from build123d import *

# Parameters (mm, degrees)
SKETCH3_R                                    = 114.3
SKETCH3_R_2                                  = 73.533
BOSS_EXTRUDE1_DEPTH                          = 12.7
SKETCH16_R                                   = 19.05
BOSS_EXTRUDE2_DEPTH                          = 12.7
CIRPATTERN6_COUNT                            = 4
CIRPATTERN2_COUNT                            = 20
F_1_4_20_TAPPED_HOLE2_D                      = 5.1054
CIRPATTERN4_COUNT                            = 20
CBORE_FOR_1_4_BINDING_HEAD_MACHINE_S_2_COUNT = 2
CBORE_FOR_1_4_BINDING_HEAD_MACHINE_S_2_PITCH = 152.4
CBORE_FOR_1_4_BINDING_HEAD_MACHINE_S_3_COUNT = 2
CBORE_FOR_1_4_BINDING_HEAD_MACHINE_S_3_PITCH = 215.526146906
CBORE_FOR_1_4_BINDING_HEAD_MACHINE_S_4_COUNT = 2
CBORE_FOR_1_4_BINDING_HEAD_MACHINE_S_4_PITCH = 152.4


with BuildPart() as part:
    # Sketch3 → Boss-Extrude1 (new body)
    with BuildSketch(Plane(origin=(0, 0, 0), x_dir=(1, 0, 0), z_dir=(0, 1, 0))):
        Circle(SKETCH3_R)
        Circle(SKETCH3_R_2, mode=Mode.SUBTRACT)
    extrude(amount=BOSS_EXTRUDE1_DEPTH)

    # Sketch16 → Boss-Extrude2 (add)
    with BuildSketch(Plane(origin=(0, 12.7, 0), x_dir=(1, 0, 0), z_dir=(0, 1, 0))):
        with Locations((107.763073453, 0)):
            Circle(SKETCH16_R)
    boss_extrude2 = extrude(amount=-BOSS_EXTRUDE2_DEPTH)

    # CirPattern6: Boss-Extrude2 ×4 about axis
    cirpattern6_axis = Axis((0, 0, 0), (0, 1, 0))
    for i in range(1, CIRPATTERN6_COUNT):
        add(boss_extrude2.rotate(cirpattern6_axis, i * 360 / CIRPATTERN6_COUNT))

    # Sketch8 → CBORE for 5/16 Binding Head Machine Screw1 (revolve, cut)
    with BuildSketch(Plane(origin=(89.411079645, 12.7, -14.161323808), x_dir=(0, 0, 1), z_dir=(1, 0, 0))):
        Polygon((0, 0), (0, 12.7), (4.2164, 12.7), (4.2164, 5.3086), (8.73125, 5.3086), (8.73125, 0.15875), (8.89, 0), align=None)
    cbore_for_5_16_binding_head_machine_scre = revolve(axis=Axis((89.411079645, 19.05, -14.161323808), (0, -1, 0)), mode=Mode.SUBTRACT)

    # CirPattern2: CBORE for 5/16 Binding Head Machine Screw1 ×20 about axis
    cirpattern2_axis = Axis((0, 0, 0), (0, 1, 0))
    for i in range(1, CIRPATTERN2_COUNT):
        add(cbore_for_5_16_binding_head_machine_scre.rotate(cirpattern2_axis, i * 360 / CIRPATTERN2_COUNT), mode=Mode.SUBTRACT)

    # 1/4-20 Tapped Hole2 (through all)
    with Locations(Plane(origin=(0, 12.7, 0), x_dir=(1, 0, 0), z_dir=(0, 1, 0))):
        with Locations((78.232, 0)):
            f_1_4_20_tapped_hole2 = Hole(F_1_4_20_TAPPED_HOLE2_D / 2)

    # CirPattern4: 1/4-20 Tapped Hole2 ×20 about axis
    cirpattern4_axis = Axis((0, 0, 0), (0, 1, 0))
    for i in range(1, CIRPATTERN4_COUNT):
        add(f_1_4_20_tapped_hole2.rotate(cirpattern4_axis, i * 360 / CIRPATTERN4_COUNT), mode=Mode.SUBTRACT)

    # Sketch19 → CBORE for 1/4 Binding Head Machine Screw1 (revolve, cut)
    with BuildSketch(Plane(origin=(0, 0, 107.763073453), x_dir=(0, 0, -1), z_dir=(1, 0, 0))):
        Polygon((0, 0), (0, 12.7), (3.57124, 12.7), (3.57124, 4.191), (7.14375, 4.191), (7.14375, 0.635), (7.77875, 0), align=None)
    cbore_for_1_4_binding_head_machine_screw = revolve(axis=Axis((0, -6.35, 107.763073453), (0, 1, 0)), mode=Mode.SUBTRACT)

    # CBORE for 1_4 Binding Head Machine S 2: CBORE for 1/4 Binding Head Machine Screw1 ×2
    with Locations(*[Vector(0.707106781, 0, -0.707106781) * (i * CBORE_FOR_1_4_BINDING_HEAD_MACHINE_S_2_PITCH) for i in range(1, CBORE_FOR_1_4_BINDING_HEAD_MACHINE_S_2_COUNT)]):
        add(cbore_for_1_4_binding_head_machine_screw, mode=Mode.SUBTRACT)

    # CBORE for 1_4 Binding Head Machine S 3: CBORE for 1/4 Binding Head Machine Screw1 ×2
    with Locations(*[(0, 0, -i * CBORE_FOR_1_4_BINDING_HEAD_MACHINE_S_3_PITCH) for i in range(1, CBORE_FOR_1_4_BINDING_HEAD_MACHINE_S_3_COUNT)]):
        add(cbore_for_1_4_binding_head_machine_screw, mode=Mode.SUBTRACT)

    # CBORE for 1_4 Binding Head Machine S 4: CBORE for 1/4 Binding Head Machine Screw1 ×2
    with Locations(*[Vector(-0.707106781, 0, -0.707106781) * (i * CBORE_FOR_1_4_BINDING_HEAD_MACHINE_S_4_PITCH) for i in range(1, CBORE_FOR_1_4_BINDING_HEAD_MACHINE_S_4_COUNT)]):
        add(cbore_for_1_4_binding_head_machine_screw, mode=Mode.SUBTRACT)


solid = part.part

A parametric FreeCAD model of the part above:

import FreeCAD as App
import Part
import Sketcher

V = App.Vector
Q = App.Units.Quantity

doc = App.newDocument("Part")
params = doc.addObject("Spreadsheet::Sheet", "Params")
for row, (alias, value) in enumerate([
    ("sketch1_diameter", "9 in"),
    ("sketch1_diameter2", "5.79 in"),
    ("pad1_length", "0.5 in"),
    ("sketch2_diameter", "1.5 in"),
    ("pad2_length", "0.5 in"),
    ("sketch3_width", "0.5 in"),
    ("sketch3_height", "0.35 in"),
    ("sketch3_width2", "0.291 in"),
    ("sketch3_height2", "0.166 in"),
    ("groove_angle", "360 deg"),
    ("sketch4_diameter", "0.201 in"),
    ("hole_diameter", "0.201 in"),
    ("sketch5_width", "0.5 in"),
    ("sketch5_width2", "0.14 in"),
    ("sketch5_width3", "0.335 in"),
    ("groove2_angle", "360 deg"),
    ("linearpattern_pitch", "6 in"),
    ("linearpattern2_pitch", "215.526147 mm"),
    ("linearpattern3_pitch", "6 in"),
], start=1):
    params.set(f"A{row}", alias)
    params.set(f"B{row}", "=" + value)
    params.setAlias(f"B{row}", alias)

body = doc.addObject("PartDesign::Body", "Body")

# Sketch on XZ plane
sketch1 = body.newObject("Sketcher::SketchObject", "Sketch")
sketch1.AttachmentSupport = (doc.getObject("XZ_Plane"), [""])
sketch1.MapMode = "FlatFace"
sketch1.addGeometry(Part.Circle(V(0, 0, 0), V(0, 0, 1), 114), False)
sketch1.addGeometry(Part.Circle(V(0, 0, 0), V(0, 0, 1), 74), False)
sketch1.addConstraint(Sketcher.Constraint("Coincident", 0, 3, -1, 1))
sketch1.addConstraint(Sketcher.Constraint("Coincident", 1, 3, -1, 1))
sketch1.addConstraint(Sketcher.Constraint("Diameter", 0, Q("9 in")))
sketch1.addConstraint(Sketcher.Constraint("Diameter", 1, Q("5.79 in")))
sketch1.setExpression("Constraints[2]", "Params.sketch1_diameter")
sketch1.setExpression("Constraints[3]", "Params.sketch1_diameter2")
pad1 = body.newObject("PartDesign::Pad", "Pad")
pad1.Profile = sketch1
pad1.setExpression("Length", "Params.pad1_length")
pad1.Reversed = True

# Sketch on XZ plane
sketch2 = body.newObject("Sketcher::SketchObject", "Sketch001")
sketch2.AttachmentSupport = (doc.getObject("XZ_Plane"), [""])
sketch2.MapMode = "FlatFace"
sketch2.AttachmentOffset = App.Placement(V(0, 0, -0.5 * 25.4), App.Rotation())
sketch2.addGeometry(Part.Circle(V(108, 0, 0), V(0, 0, 1), 19), False)
sketch2.addConstraint(Sketcher.Constraint("PointOnObject", 0, 3, -1))
sketch2.addConstraint(Sketcher.Constraint("Diameter", 0, Q("1.5 in")))
sketch2.addConstraint(Sketcher.Constraint("DistanceX", -1, 1, 0, 3, 107.763073))
sketch2.setExpression("Constraints[1]", "Params.sketch2_diameter")
pad2 = body.newObject("PartDesign::Pad", "Pad001")
pad2.Profile = sketch2
pad2.setExpression("Length", "Params.pad2_length")
doc.recompute()

polarpattern = body.newObject("PartDesign::PolarPattern", "PolarPattern")
polarpattern.Originals = [pad2]
polarpattern.Axis = (doc.getObject("Y_Axis"), [""])
polarpattern.Angle = 360
polarpattern.Occurrences = 4
body.Tip = polarpattern

# Sketch on YZ plane
sketch3 = body.newObject("Sketcher::SketchObject", "Sketch002")
sketch3.AttachmentSupport = (doc.getObject("YZ_Plane"), [""])
sketch3.MapMode = "FlatFace"
sketch3.AttachmentOffset = App.Placement(V(0, 0, 89.41108), App.Rotation())
sketch3.addGeometry(Part.LineSegment(V(0, -14.16, 0), V(12.7, -14.16, 0)), False)
sketch3.addGeometry(Part.LineSegment(V(12.7, -14.16, 0), V(12.7, -5.27, 0)), False)
sketch3.addGeometry(Part.LineSegment(V(12.7, -5.27, 0), V(12.54, -5.43, 0)), False)
sketch3.addGeometry(Part.LineSegment(V(12.54, -5.43, 0), V(7.39, -5.43, 0)), False)
sketch3.addGeometry(Part.LineSegment(V(7.39, -5.43, 0), V(7.39, -9.94, 0)), False)
sketch3.addGeometry(Part.LineSegment(V(7.39, -9.94, 0), V(0, -9.94, 0)), False)
sketch3.addGeometry(Part.LineSegment(V(0, -9.94, 0), V(0, -14.16, 0)), False)
sketch3.addGeometry(Part.LineSegment(V(12.7, -14.16, 0), V(0, -14.16, 0)), True)  # axis
sketch3.addConstraint(Sketcher.Constraint("Coincident", 0, 2, 1, 1))
sketch3.addConstraint(Sketcher.Constraint("Coincident", 1, 2, 2, 1))
sketch3.addConstraint(Sketcher.Constraint("Coincident", 2, 2, 3, 1))
sketch3.addConstraint(Sketcher.Constraint("Coincident", 3, 2, 4, 1))
sketch3.addConstraint(Sketcher.Constraint("Coincident", 4, 2, 5, 1))
sketch3.addConstraint(Sketcher.Constraint("Coincident", 5, 2, 6, 1))
sketch3.addConstraint(Sketcher.Constraint("Coincident", 6, 2, 0, 1))
sketch3.addConstraint(Sketcher.Constraint("Horizontal", 0))
sketch3.addConstraint(Sketcher.Constraint("Vertical", 1))
sketch3.addConstraint(Sketcher.Constraint("Horizontal", 3))
sketch3.addConstraint(Sketcher.Constraint("Vertical", 4))
sketch3.addConstraint(Sketcher.Constraint("Horizontal", 5))
sketch3.addConstraint(Sketcher.Constraint("Vertical", 6))
sketch3.addConstraint(Sketcher.Constraint("Horizontal", 7))
sketch3.addConstraint(Sketcher.Constraint("Coincident", 7, 1, 0, 2))
sketch3.addConstraint(Sketcher.Constraint("PointOnObject", 5, 2, -2))
sketch3.addConstraint(Sketcher.Constraint("PointOnObject", 7, 2, -2))
sketch3.addConstraint(Sketcher.Constraint("DistanceX", 0, 1, 0, 2, Q("0.5 in")))
sketch3.addConstraint(Sketcher.Constraint("Angle", 2, Q("-135 deg")))
sketch3.addConstraint(Sketcher.Constraint("DistanceY", 1, 1, 1, 2, Q("0.35 in")))
sketch3.addConstraint(Sketcher.Constraint("DistanceX", 5, 2, 5, 1, Q("0.291 in")))
sketch3.addConstraint(Sketcher.Constraint("DistanceY", 6, 2, 6, 1, Q("0.166 in")))
sketch3.addConstraint(Sketcher.Constraint("DistanceY", 0, 2, 2, 2, Q("0.34375 in")))
sketch3.addConstraint(Sketcher.Constraint("DistanceY", 0, 2, -1, 1, 14.161324))
sketch3.setExpression("Constraints[17]", "Params.sketch3_width")
sketch3.setExpression("Constraints[19]", "Params.sketch3_height")
sketch3.setExpression("Constraints[20]", "Params.sketch3_width2")
sketch3.setExpression("Constraints[21]", "Params.sketch3_height2")
groove = body.newObject("PartDesign::Groove", "Groove")
groove.Profile = sketch3
groove.ReferenceAxis = (sketch3, ["Axis0"])
groove.setExpression("Angle", "Params.groove_angle")
doc.recompute()

polarpattern2 = body.newObject("PartDesign::PolarPattern", "PolarPattern001")
polarpattern2.Originals = [groove]
polarpattern2.Axis = (doc.getObject("Y_Axis"), [""])
polarpattern2.Angle = 360
polarpattern2.Occurrences = 20
body.Tip = polarpattern2

# Sketch on XZ plane
sketch4 = body.newObject("Sketcher::SketchObject", "Sketch003")
sketch4.AttachmentSupport = (doc.getObject("XZ_Plane"), [""])
sketch4.MapMode = "FlatFace"
sketch4.AttachmentOffset = App.Placement(V(0, 0, -0.5 * 25.4), App.Rotation())
sketch4.addGeometry(Part.Circle(V(78.2, 0, 0), V(0, 0, 1), 2.6), False)
sketch4.addConstraint(Sketcher.Constraint("PointOnObject", 0, 3, -1))
sketch4.addConstraint(Sketcher.Constraint("Diameter", 0, Q("0.201 in")))
sketch4.addConstraint(Sketcher.Constraint("DistanceX", -1, 1, 0, 3, Q("3.08 in")))
sketch4.setExpression("Constraints[1]", "Params.sketch4_diameter")
doc.recompute()
hole = body.newObject("PartDesign::Hole", "Hole")
hole.Profile = sketch4
hole.ThreadType = "None"
hole.setExpression("Diameter", "Params.hole_diameter")
hole.DepthType = "ThroughAll"
hole.Reversed = True
doc.recompute()

polarpattern3 = body.newObject("PartDesign::PolarPattern", "PolarPattern002")
polarpattern3.Originals = [hole]
polarpattern3.Axis = (doc.getObject("Y_Axis"), [""])
polarpattern3.Angle = 360
polarpattern3.Occurrences = 20
body.Tip = polarpattern3

# Sketch on YZ plane
sketch5 = body.newObject("Sketcher::SketchObject", "Sketch004")
sketch5.AttachmentSupport = (doc.getObject("YZ_Plane"), [""])
sketch5.MapMode = "FlatFace"
sketch5.addGeometry(Part.LineSegment(V(12.7, 107.8, 0), V(0, 107.8, 0)), False)
sketch5.addGeometry(Part.LineSegment(V(0, 107.8, 0), V(0, 100, 0)), False)
sketch5.addGeometry(Part.LineSegment(V(0, 100, 0), V(0.6, 100.6, 0)), False)
sketch5.addGeometry(Part.LineSegment(V(0.6, 100.6, 0), V(4.2, 100.6, 0)), False)
sketch5.addGeometry(Part.LineSegment(V(4.2, 100.6, 0), V(4.2, 104.2, 0)), False)
sketch5.addGeometry(Part.LineSegment(V(4.2, 104.2, 0), V(12.7, 104.2, 0)), False)
sketch5.addGeometry(Part.LineSegment(V(12.7, 104.2, 0), V(12.7, 107.8, 0)), False)
sketch5.addGeometry(Part.LineSegment(V(0, 107.8, 0), V(12.7, 107.8, 0)), True)  # axis
sketch5.addConstraint(Sketcher.Constraint("Coincident", 0, 2, 1, 1))
sketch5.addConstraint(Sketcher.Constraint("Coincident", 1, 2, 2, 1))
sketch5.addConstraint(Sketcher.Constraint("Coincident", 2, 2, 3, 1))
sketch5.addConstraint(Sketcher.Constraint("Coincident", 3, 2, 4, 1))
sketch5.addConstraint(Sketcher.Constraint("Coincident", 4, 2, 5, 1))
sketch5.addConstraint(Sketcher.Constraint("Coincident", 5, 2, 6, 1))
sketch5.addConstraint(Sketcher.Constraint("Coincident", 6, 2, 0, 1))
sketch5.addConstraint(Sketcher.Constraint("Horizontal", 0))
sketch5.addConstraint(Sketcher.Constraint("Vertical", 1))
sketch5.addConstraint(Sketcher.Constraint("Horizontal", 3))
sketch5.addConstraint(Sketcher.Constraint("Vertical", 4))
sketch5.addConstraint(Sketcher.Constraint("Horizontal", 5))
sketch5.addConstraint(Sketcher.Constraint("Vertical", 6))
sketch5.addConstraint(Sketcher.Constraint("Horizontal", 7))
sketch5.addConstraint(Sketcher.Constraint("Coincident", 7, 1, 0, 2))
sketch5.addConstraint(Sketcher.Constraint("PointOnObject", 0, 2, -2))
sketch5.addConstraint(Sketcher.Constraint("Vertical", 5, 2, 7, 2))
sketch5.addConstraint(Sketcher.Constraint("DistanceX", 0, 2, 0, 1, Q("0.5 in")))
sketch5.addConstraint(Sketcher.Constraint("Angle", 2, Q("45 deg")))
sketch5.addConstraint(Sketcher.Constraint("DistanceX", 3, 1, 3, 2, Q("0.14 in")))
sketch5.addConstraint(Sketcher.Constraint("DistanceX", 5, 1, 5, 2, Q("0.335 in")))
sketch5.addConstraint(Sketcher.Constraint("DistanceY", 6, 1, 6, 2, Q("0.1406 in")))
sketch5.addConstraint(Sketcher.Constraint("DistanceY", 2, 2, 0, 2, Q("0.28125 in")))
sketch5.addConstraint(Sketcher.Constraint("DistanceY", -1, 1, 0, 2, 107.763073))
sketch5.setExpression("Constraints[17]", "Params.sketch5_width")
sketch5.setExpression("Constraints[19]", "Params.sketch5_width2")
sketch5.setExpression("Constraints[20]", "Params.sketch5_width3")
groove2 = body.newObject("PartDesign::Groove", "Groove001")
groove2.Profile = sketch5
groove2.ReferenceAxis = (sketch5, ["Axis0"])
groove2.setExpression("Angle", "Params.groove2_angle")
doc.recompute()

datumline = body.newObject("PartDesign::Line", "DatumLine")
datumline.Placement = App.Placement(V(0, 0, 0), App.Rotation(V(0, 0, 1), V(0.707106781, 0, -0.707106781)))
linearpattern = body.newObject("PartDesign::LinearPattern", "LinearPattern")
linearpattern.Originals = [groove2]
linearpattern.Direction = (datumline, [""])
linearpattern.Mode = "offset"
linearpattern.setExpression("Offset", "Params.linearpattern_pitch")
linearpattern.Occurrences = 2
body.Tip = linearpattern
doc.recompute()

linearpattern2 = body.newObject("PartDesign::LinearPattern", "LinearPattern001")
linearpattern2.Originals = [groove2]
linearpattern2.Direction = (doc.getObject("Z_Axis"), [""])
linearpattern2.Mode = "offset"
linearpattern2.setExpression("Offset", "Params.linearpattern2_pitch")
linearpattern2.Occurrences = 2
linearpattern2.Reversed = True
body.Tip = linearpattern2
doc.recompute()

datumline2 = body.newObject("PartDesign::Line", "DatumLine001")
datumline2.Placement = App.Placement(V(0, 0, 0), App.Rotation(V(0, 0, 1), V(-0.707106781, 0, -0.707106781)))
linearpattern3 = body.newObject("PartDesign::LinearPattern", "LinearPattern002")
linearpattern3.Originals = [groove2]
linearpattern3.Direction = (datumline2, [""])
linearpattern3.Mode = "offset"
linearpattern3.setExpression("Offset", "Params.linearpattern3_pitch")
linearpattern3.Occurrences = 2
body.Tip = linearpattern3

doc.recompute()
